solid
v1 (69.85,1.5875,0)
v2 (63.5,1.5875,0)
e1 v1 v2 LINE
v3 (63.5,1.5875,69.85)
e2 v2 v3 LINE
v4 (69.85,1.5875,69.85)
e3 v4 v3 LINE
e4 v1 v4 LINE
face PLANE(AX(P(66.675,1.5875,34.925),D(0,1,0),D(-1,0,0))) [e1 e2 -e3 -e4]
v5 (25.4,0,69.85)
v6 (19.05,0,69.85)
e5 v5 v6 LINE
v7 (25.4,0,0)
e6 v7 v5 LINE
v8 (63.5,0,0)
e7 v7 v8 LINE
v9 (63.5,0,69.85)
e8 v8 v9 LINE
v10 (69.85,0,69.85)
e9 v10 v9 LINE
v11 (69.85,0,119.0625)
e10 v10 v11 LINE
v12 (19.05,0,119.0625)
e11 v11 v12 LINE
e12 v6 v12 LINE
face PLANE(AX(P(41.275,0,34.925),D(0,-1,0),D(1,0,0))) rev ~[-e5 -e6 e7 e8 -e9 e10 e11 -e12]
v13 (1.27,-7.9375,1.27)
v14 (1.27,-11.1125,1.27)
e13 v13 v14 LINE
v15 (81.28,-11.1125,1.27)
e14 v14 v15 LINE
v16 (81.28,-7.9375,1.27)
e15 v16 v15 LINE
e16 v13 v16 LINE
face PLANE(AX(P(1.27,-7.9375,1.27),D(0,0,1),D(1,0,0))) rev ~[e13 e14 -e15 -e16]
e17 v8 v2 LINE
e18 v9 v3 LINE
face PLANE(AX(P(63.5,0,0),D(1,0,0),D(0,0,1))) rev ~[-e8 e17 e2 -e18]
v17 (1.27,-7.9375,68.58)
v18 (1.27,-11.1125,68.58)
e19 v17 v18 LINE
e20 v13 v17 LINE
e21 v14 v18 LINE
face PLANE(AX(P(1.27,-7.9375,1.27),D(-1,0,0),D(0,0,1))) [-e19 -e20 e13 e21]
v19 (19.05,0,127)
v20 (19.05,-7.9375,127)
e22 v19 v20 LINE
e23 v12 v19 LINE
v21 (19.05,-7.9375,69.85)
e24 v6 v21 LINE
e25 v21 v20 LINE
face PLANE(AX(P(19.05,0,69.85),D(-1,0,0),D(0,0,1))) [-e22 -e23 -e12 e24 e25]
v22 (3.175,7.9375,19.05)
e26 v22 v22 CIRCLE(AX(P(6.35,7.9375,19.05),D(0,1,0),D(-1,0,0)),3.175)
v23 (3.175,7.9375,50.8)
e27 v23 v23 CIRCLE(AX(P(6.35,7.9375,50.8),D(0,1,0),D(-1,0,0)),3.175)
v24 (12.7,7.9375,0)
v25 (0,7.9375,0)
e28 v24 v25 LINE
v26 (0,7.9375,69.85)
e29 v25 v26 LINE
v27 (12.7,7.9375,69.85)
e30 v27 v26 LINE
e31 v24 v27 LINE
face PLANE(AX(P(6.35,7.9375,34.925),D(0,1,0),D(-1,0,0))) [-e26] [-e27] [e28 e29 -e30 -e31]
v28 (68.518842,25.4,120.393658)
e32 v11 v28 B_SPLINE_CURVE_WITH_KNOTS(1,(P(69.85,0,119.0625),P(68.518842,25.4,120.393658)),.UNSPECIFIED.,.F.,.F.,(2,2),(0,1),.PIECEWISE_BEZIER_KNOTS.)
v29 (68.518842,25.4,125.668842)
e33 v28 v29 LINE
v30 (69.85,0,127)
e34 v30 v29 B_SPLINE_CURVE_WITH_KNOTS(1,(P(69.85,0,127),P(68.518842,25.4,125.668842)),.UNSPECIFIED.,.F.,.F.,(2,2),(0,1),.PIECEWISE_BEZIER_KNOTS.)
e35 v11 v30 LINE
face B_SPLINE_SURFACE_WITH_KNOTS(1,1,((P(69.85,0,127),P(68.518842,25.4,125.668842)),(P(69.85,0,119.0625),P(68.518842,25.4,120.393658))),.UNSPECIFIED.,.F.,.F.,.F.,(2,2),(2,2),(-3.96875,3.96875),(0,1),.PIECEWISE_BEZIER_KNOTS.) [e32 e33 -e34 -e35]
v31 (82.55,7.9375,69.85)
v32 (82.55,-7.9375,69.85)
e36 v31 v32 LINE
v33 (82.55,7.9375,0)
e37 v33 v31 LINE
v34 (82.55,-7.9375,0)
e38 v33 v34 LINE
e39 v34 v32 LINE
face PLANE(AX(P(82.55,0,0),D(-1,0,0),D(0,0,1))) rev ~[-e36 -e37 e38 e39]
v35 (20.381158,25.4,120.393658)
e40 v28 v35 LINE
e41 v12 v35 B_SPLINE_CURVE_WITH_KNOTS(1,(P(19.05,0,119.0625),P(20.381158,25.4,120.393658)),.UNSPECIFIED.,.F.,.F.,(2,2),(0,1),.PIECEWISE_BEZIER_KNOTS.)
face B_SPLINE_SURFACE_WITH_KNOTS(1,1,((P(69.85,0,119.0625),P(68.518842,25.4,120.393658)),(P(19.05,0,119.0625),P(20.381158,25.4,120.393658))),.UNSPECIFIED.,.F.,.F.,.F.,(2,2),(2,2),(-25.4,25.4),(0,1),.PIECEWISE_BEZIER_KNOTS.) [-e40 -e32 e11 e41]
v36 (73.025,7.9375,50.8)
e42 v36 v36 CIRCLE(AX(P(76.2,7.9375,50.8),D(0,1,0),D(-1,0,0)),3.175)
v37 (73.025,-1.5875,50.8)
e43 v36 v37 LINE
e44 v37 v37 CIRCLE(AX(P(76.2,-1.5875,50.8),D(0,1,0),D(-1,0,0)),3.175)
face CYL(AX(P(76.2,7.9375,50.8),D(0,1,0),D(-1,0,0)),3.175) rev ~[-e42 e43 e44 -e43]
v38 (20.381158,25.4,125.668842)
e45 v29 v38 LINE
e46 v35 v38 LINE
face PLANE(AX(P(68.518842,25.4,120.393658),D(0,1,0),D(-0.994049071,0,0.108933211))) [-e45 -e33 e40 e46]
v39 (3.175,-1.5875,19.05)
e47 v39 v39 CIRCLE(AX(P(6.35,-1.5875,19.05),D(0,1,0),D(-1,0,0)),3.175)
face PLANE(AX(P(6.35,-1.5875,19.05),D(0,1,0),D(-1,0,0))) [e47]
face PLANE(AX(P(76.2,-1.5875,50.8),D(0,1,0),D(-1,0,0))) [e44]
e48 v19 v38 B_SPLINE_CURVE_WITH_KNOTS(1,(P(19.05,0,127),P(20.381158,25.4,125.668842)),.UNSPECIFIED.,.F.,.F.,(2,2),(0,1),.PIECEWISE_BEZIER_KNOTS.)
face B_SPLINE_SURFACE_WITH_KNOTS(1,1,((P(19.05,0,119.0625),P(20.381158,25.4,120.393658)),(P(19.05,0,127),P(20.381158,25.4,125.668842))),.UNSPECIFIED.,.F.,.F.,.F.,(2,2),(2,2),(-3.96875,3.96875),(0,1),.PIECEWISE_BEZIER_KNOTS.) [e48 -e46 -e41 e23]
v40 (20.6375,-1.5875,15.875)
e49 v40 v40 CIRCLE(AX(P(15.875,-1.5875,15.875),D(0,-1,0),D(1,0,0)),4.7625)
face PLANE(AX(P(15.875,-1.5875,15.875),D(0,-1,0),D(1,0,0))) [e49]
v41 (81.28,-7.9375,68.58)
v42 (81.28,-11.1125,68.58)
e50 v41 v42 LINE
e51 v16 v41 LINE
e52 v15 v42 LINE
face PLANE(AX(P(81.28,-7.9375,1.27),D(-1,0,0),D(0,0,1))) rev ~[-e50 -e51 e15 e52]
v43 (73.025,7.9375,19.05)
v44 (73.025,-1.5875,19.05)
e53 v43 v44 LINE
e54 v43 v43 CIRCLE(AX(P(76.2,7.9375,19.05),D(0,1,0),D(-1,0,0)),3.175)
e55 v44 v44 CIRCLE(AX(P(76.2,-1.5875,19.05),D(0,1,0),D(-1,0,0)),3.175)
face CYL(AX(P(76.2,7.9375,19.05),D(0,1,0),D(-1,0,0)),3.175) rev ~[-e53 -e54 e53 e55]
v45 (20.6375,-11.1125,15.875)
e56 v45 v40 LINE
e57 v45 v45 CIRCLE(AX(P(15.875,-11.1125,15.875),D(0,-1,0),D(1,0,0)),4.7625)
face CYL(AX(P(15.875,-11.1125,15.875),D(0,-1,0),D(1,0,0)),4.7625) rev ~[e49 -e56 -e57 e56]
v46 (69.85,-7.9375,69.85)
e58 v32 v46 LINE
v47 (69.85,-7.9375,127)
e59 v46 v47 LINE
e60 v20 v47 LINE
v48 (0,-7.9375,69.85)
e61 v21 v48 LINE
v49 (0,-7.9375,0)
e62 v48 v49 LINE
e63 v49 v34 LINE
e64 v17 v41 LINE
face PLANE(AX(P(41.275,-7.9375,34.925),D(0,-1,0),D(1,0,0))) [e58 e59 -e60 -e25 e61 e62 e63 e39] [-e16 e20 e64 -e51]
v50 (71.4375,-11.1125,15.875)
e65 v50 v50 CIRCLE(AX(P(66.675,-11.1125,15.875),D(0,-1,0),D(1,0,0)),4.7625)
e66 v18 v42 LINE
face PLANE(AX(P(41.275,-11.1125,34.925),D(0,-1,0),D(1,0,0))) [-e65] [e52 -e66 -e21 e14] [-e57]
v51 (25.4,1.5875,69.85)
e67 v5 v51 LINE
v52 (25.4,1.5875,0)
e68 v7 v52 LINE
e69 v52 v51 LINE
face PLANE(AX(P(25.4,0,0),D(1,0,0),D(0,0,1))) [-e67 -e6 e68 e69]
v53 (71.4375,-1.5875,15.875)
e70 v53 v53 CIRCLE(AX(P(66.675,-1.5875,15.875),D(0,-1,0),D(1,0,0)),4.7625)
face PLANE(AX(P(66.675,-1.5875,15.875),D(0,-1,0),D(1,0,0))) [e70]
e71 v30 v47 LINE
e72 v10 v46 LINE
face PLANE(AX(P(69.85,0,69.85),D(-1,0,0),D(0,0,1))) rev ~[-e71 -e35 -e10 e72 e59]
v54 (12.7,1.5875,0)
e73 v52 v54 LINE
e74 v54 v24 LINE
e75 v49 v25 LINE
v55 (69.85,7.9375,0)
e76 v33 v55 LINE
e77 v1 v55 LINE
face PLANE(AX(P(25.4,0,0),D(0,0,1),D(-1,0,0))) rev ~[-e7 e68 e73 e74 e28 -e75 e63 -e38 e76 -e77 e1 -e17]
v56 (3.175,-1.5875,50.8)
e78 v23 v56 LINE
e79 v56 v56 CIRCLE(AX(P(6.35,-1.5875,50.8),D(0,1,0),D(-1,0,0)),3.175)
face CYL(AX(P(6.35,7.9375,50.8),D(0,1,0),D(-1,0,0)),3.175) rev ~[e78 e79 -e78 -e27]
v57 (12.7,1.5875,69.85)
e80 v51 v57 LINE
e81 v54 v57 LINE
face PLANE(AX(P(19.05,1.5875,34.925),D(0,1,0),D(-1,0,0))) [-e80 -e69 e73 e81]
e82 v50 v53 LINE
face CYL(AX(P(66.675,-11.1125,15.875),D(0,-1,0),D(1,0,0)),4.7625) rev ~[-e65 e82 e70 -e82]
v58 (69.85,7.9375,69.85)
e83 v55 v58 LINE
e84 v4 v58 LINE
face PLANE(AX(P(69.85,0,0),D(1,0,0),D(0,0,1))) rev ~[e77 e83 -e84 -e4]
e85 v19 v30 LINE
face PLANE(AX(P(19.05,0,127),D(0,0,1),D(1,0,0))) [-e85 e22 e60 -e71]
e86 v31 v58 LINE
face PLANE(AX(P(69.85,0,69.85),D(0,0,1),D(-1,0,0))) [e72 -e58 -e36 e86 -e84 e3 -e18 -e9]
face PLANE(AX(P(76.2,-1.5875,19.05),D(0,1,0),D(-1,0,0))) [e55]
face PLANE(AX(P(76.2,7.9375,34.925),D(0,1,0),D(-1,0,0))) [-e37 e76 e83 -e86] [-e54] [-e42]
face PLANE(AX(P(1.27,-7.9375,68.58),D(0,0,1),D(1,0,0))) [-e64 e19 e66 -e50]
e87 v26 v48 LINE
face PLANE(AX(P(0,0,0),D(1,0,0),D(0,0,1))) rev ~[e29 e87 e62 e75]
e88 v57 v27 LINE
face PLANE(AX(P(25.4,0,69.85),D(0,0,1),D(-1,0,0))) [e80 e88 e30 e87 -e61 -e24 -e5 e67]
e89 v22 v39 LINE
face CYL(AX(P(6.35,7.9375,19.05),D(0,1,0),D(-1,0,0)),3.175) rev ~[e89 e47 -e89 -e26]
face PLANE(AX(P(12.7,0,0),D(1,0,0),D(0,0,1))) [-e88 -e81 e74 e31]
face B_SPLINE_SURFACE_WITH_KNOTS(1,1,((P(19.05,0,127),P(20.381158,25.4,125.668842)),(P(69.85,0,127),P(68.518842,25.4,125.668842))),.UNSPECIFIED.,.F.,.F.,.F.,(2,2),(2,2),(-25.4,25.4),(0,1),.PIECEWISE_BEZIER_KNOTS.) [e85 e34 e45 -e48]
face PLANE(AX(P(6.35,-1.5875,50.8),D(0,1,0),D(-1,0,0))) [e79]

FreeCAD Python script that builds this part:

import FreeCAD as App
import Part
import Sketcher
from FreeCAD import Vector
Q = App.Units.Quantity

doc = App.newDocument("Part")
body = doc.addObject("PartDesign::Body", "Body")

# Sketch on XZ plane
sketch1 = body.newObject("Sketcher::SketchObject", "Sketch")
sketch1.AttachmentSupport = (doc.getObject("XZ_Plane"), [""])
sketch1.MapMode = "FlatFace"
sketch1.addGeometry(Part.LineSegment(Vector(0, 70, 0), Vector(0, 0, 0)), False)
sketch1.addGeometry(Part.LineSegment(Vector(0, 0, 0), Vector(83, 0, 0)), False)
sketch1.addGeometry(Part.LineSegment(Vector(83, 0, 0), Vector(83, 70, 0)), False)
sketch1.addGeometry(Part.LineSegment(Vector(83, 70, 0), Vector(70, 70, 0)), False)
sketch1.addGeometry(Part.LineSegment(Vector(70, 70, 0), Vector(70, 127, 0)), False)
sketch1.addGeometry(Part.LineSegment(Vector(70, 127, 0), Vector(19, 127, 0)), False)
sketch1.addGeometry(Part.LineSegment(Vector(19, 127, 0), Vector(19, 70, 0)), False)
sketch1.addGeometry(Part.LineSegment(Vector(19, 70, 0), Vector(0, 70, 0)), False)
sketch1.addConstraint(Sketcher.Constraint("Coincident", 0, 2, 1, 1))
sketch1.addConstraint(Sketcher.Constraint("Coincident", 1, 2, 2, 1))
sketch1.addConstraint(Sketcher.Constraint("Coincident", 2, 2, 3, 1))
sketch1.addConstraint(Sketcher.Constraint("Coincident", 3, 2, 4, 1))
sketch1.addConstraint(Sketcher.Constraint("Coincident", 4, 2, 5, 1))
sketch1.addConstraint(Sketcher.Constraint("Coincident", 5, 2, 6, 1))
sketch1.addConstraint(Sketcher.Constraint("Coincident", 6, 2, 7, 1))
sketch1.addConstraint(Sketcher.Constraint("Coincident", 7, 2, 0, 1))
sketch1.addConstraint(Sketcher.Constraint("Vertical", 0))
sketch1.addConstraint(Sketcher.Constraint("Horizontal", 1))
sketch1.addConstraint(Sketcher.Constraint("Vertical", 2))
sketch1.addConstraint(Sketcher.Constraint("Horizontal", 3))
sketch1.addConstraint(Sketcher.Constraint("Vertical", 4))
sketch1.addConstraint(Sketcher.Constraint("Horizontal", 5))
sketch1.addConstraint(Sketcher.Constraint("Vertical", 6))
sketch1.addConstraint(Sketcher.Constraint("Horizontal", 7))
sketch1.addConstraint(Sketcher.Constraint("Coincident", 0, 2, -1, 1))
sketch1.addConstraint(Sketcher.Constraint("Horizontal", 3, 2, 6, 2))
sketch1.addConstraint(Sketcher.Constraint("DistanceX", 5, 2, 5, 1, Q("2 in")))
sketch1.addConstraint(Sketcher.Constraint("DistanceX", 3, 2, 3, 1, Q("0.5 in")))
sketch1.addConstraint(Sketcher.Constraint("DistanceY", -1, 1, 4, 2, Q("5 in")))
sketch1.addConstraint(Sketcher.Constraint("DistanceX", 1, 1, 1, 2, Q("3.25 in")))
sketch1.addConstraint(Sketcher.Constraint("DistanceY", 0, 2, 0, 1, Q("2.75 in")))
pad1 = body.newObject("PartDesign::Pad", "Pad")
pad1.Profile = sketch1
pad1.Length = Q("0.3125 in")

# Sketch on XZ plane
sketch2 = body.newObject("Sketcher::SketchObject", "Sketch001")
sketch2.AttachmentSupport = (doc.getObject("XZ_Plane"), [""])
sketch2.MapMode = "FlatFace"
sketch2.addGeometry(Part.LineSegment(Vector(13, 70, 0), Vector(13, 0, 0)), False)
sketch2.addGeometry(Part.LineSegment(Vector(13, 0, 0), Vector(0, 0, 0)), False)
sketch2.addGeometry(Part.LineSegment(Vector(0, 0, 0), Vector(0, 70, 0)), False)
sketch2.addGeometry(Part.LineSegment(Vector(0, 70, 0), Vector(13, 70, 0)), False)
sketch2.addGeometry(Part.LineSegment(Vector(83, 70, 0), Vector(83, 0, 0)), False)
sketch2.addGeometry(Part.LineSegment(Vector(83, 0, 0), Vector(70, 0, 0)), False)
sketch2.addGeometry(Part.LineSegment(Vector(70, 0, 0), Vector(70, 70, 0)), False)
sketch2.addGeometry(Part.LineSegment(Vector(70, 70, 0), Vector(83, 70, 0)), False)
sketch2.addConstraint(Sketcher.Constraint("Coincident", 0, 2, 1, 1))
sketch2.addConstraint(Sketcher.Constraint("Coincident", 1, 2, 2, 1))
sketch2.addConstraint(Sketcher.Constraint("Coincident", 2, 2, 3, 1))
sketch2.addConstraint(Sketcher.Constraint("Coincident", 3, 2, 0, 1))
sketch2.addConstraint(Sketcher.Constraint("Coincident", 4, 2, 5, 1))
sketch2.addConstraint(Sketcher.Constraint("Coincident", 5, 2, 6, 1))
sketch2.addConstraint(Sketcher.Constraint("Coincident", 6, 2, 7, 1))
sketch2.addConstraint(Sketcher.Constraint("Coincident", 7, 2, 4, 1))
sketch2.addConstraint(Sketcher.Constraint("Vertical", 0))
sketch2.addConstraint(Sketcher.Constraint("Horizontal", 1))
sketch2.addConstraint(Sketcher.Constraint("Vertical", 2))
sketch2.addConstraint(Sketcher.Constraint("Horizontal", 3))
sketch2.addConstraint(Sketcher.Constraint("Vertical", 4))
sketch2.addConstraint(Sketcher.Constraint("Horizontal", 5))
sketch2.addConstraint(Sketcher.Constraint("Vertical", 6))
sketch2.addConstraint(Sketcher.Constraint("Horizontal", 7))
sketch2.addConstraint(Sketcher.Constraint("Coincident", 1, 2, -1, 1))
sketch2.addConstraint(Sketcher.Constraint("PointOnObject", 4, 2, -1))
sketch2.addConstraint(Sketcher.Constraint("Horizontal", 3, 2, 6, 2))
sketch2.addConstraint(Sketcher.Constraint("Equal", 3, 5))
sketch2.addConstraint(Sketcher.Constraint("DistanceX", 1, 2, 1, 1, Q("0.5 in")))
sketch2.addConstraint(Sketcher.Constraint("DistanceY", 0, 2, 0, 1, Q("2.75 in")))
sketch2.addConstraint(Sketcher.Constraint("DistanceX", -1, 1, 4, 2, Q("3.25 in")))
pad2 = body.newObject("PartDesign::Pad", "Pad001")
pad2.Profile = sketch2
pad2.Length = Q("0.3125 in")
pad2.Reversed = True

# Sketch on XZ plane
sketch3 = body.newObject("Sketcher::SketchObject", "Sketch002")
sketch3.AttachmentSupport = (doc.getObject("XZ_Plane"), [""])
sketch3.MapMode = "FlatFace"
sketch3.addGeometry(Part.LineSegment(Vector(25, 70, 0), Vector(25, 0, 0)), False)
sketch3.addGeometry(Part.LineSegment(Vector(25, 0, 0), Vector(13, 0, 0)), False)
sketch3.addGeometry(Part.LineSegment(Vector(13, 0, 0), Vector(13, 70, 0)), False)
sketch3.addGeometry(Part.LineSegment(Vector(13, 70, 0), Vector(25, 70, 0)), False)
sketch3.addGeometry(Part.LineSegment(Vector(70, 70, 0), Vector(70, 0, 0)), False)
sketch3.addGeometry(Part.LineSegment(Vector(70, 0, 0), Vector(64, 0, 0)), False)
sketch3.addGeometry(Part.LineSegment(Vector(64, 0, 0), Vector(64, 70, 0)), False)
sketch3.addGeometry(Part.LineSegment(Vector(64, 70, 0), Vector(70, 70, 0)), False)
sketch3.addConstraint(Sketcher.Constraint("Coincident", 0, 2, 1, 1))
sketch3.addConstraint(Sketcher.Constraint("Coincident", 1, 2, 2, 1))
sketch3.addConstraint(Sketcher.Constraint("Coincident", 2, 2, 3, 1))
sketch3.addConstraint(Sketcher.Constraint("Coincident", 3, 2, 0, 1))
sketch3.addConstraint(Sketcher.Constraint("Coincident", 4, 2, 5, 1))
sketch3.addConstraint(Sketcher.Constraint("Coincident", 5, 2, 6, 1))
sketch3.addConstraint(Sketcher.Constraint("Coincident", 6, 2, 7, 1))
sketch3.addConstraint(Sketcher.Constraint("Coincident", 7, 2, 4, 1))
sketch3.addConstraint(Sketcher.Constraint("Vertical", 0))
sketch3.addConstraint(Sketcher.Constraint("Horizontal", 1))
sketch3.addConstraint(Sketcher.Constraint("Vertical", 2))
sketch3.addConstraint(Sketcher.Constraint("Horizontal", 3))
sketch3.addConstraint(Sketcher.Constraint("Vertical", 4))
sketch3.addConstraint(Sketcher.Constraint("Horizontal", 5))
sketch3.addConstraint(Sketcher.Constraint("Vertical", 6))
sketch3.addConstraint(Sketcher.Constraint("Horizontal", 7))
sketch3.addConstraint(Sketcher.Constraint("PointOnObject", 0, 2, -1))
sketch3.addConstraint(Sketcher.Constraint("PointOnObject", 4, 2, -1))
sketch3.addConstraint(Sketcher.Constraint("Horizontal", 3, 2, 6, 2))
sketch3.addConstraint(Sketcher.Constraint("DistanceX", 1, 2, 1, 1, Q("0.5 in")))
sketch3.addConstraint(Sketcher.Constraint("DistanceX", -1, 1, 0, 2, Q("1 in")))
sketch3.addConstraint(Sketcher.Constraint("DistanceX", 1, 2, 5, 2, Q("2 in")))
sketch3.addConstraint(Sketcher.Constraint("DistanceX", 5, 2, 5, 1, Q("0.25 in")))
sketch3.addConstraint(Sketcher.Constraint("DistanceY", 0, 2, 0, 1, Q("2.75 in")))
pad3 = body.newObject("PartDesign::Pad", "Pad002")
pad3.Profile = sketch3
pad3.Length = Q("0.0625 in")
pad3.Reversed = True

# Sketch on XZ plane
sketch4 = body.newObject("Sketcher::SketchObject", "Sketch003")
sketch4.AttachmentSupport = (doc.getObject("XZ_Plane"), [""])
sketch4.MapMode = "FlatFace"
sketch4.addGeometry(Part.LineSegment(Vector(70, 127, 0), Vector(70, 119, 0)), False)
sketch4.addGeometry(Part.LineSegment(Vector(70, 119, 0), Vector(19, 119, 0)), False)
sketch4.addGeometry(Part.LineSegment(Vector(19, 119, 0), Vector(19, 127, 0)), False)
sketch4.addGeometry(Part.LineSegment(Vector(19, 127, 0), Vector(70, 127, 0)), False)
sketch4.addConstraint(Sketcher.Constraint("Coincident", 0, 2, 1, 1))
sketch4.addConstraint(Sketcher.Constraint("Coincident", 1, 2, 2, 1))
sketch4.addConstraint(Sketcher.Constraint("Coincident", 2, 2, 3, 1))
sketch4.addConstraint(Sketcher.Constraint("Coincident", 3, 2, 0, 1))
sketch4.addConstraint(Sketcher.Constraint("Vertical", 0))
sketch4.addConstraint(Sketcher.Constraint("Horizontal", 1))
sketch4.addConstraint(Sketcher.Constraint("Vertical", 2))
sketch4.addConstraint(Sketcher.Constraint("Horizontal", 3))
sketch4.addConstraint(Sketcher.Constraint("DistanceX", 1, 2, 1, 1, Q("2 in")))
sketch4.addConstraint(Sketcher.Constraint("DistanceY", -1, 1, 2, 2, Q("5 in")))
sketch4.addConstraint(Sketcher.Constraint("DistanceY", 0, 2, 0, 1, Q("0.3125 in")))
sketch4.addConstraint(Sketcher.Constraint("DistanceX", -1, 1, 0, 2, Q("2.75 in")))
pad4 = body.newObject("PartDesign::Pad", "Pad003")
pad4.Profile = sketch4
pad4.Length = Q("1 in")
pad4.Reversed = True
pad4.TaperAngle = -3

# Sketch on XZ plane
sketch5 = body.newObject("Sketcher::SketchObject", "Sketch004")
sketch5.AttachmentSupport = (doc.getObject("XZ_Plane"), [""])
sketch5.MapMode = "FlatFace"
sketch5.AttachmentOffset = App.Placement(Vector(0, 0, 0.3125 * 25.4), App.Rotation())
sketch5.addGeometry(Part.LineSegment(Vector(1, 69, 0), Vector(1, 1, 0)), False)
sketch5.addGeometry(Part.LineSegment(Vector(1, 1, 0), Vector(81, 1, 0)), False)
sketch5.addGeometry(Part.LineSegment(Vector(81, 1, 0), Vector(81, 69, 0)), False)
sketch5.addGeometry(Part.LineSegment(Vector(81, 69, 0), Vector(1, 69, 0)), False)
sketch5.addConstraint(Sketcher.Constraint("Coincident", 0, 2, 1, 1))
sketch5.addConstraint(Sketcher.Constraint("Coincident", 1, 2, 2, 1))
sketch5.addConstraint(Sketcher.Constraint("Coincident", 2, 2, 3, 1))
sketch5.addConstraint(Sketcher.Constraint("Coincident", 3, 2, 0, 1))
sketch5.addConstraint(Sketcher.Constraint("Vertical", 0))
sketch5.addConstraint(Sketcher.Constraint("Horizontal", 1))
sketch5.addConstraint(Sketcher.Constraint("Vertical", 2))
sketch5.addConstraint(Sketcher.Constraint("Horizontal", 3))
sketch5.addConstraint(Sketcher.Constraint("DistanceX", 1, 1, 1, 2, Q("3.15 in")))
sketch5.addConstraint(Sketcher.Constraint("DistanceY", 0, 2, 0, 1, Q("2.65 in")))
sketch5.addConstraint(Sketcher.Constraint("DistanceX", -1, 1, 1, 2, Q("3.2 in")))
sketch5.addConstraint(Sketcher.Constraint("DistanceY", -1, 1, 2, 2, Q("2.7 in")))
pad5 = body.newObject("PartDesign::Pad", "Pad004")
pad5.Profile = sketch5
pad5.Length = Q("0.125 in")

# Sketch on XZ plane
sketch6 = body.newObject("Sketcher::SketchObject", "Sketch005")
sketch6.AttachmentSupport = (doc.getObject("XZ_Plane"), [""])
sketch6.MapMode = "FlatFace"
sketch6.AttachmentOffset = App.Placement(Vector(0, 0, 0.4375 * 25.4), App.Rotation())
sketch6.addGeometry(Part.Circle(Vector(15.9, 15.9, 0), Vector(0, 0, 1), 4.8), False)
sketch6.addGeometry(Part.Circle(Vector(66.7, 15.9, 0), Vector(0, 0, 1), 4.8), False)
sketch6.addConstraint(Sketcher.Constraint("Equal", 0, 1))
sketch6.addConstraint(Sketcher.Constraint("Horizontal", 0, 3, 1, 3))
sketch6.addConstraint(Sketcher.Constraint("Diameter", 0, Q("0.375 in")))
sketch6.addConstraint(Sketcher.Constraint("DistanceX", 0, 3, 1, 3, Q("2 in")))
sketch6.addConstraint(Sketcher.Constraint("DistanceX", -1, 1, 0, 3, Q("0.625 in")))
sketch6.addConstraint(Sketcher.Constraint("DistanceY", -1, 1, 0, 3, Q("0.625 in")))
pocket1 = body.newObject("PartDesign::Pocket", "Pocket")
pocket1.Profile = sketch6
pocket1.Length = Q("0.375 in")

# Sketch on XZ plane
sketch7 = body.newObject("Sketcher::SketchObject", "Sketch006")
sketch7.AttachmentSupport = (doc.getObject("XZ_Plane"), [""])
sketch7.MapMode = "FlatFace"
sketch7.AttachmentOffset = App.Placement(Vector(0, 0, -0.3125 * 25.4), App.Rotation())
sketch7.addGeometry(Part.Circle(Vector(76.2, 50.8, 0), Vector(0, 0, 1), 3.2), False)
sketch7.addGeometry(Part.Circle(Vector(76.2, 19.1, 0), Vector(0, 0, 1), 3.2), False)
sketch7.addGeometry(Part.Circle(Vector(6.3, 50.8, 0), Vector(0, 0, 1), 3.2), False)
sketch7.addGeometry(Part.Circle(Vector(6.3, 19.1, 0), Vector(0, 0, 1), 3.2), False)
sketch7.addConstraint(Sketcher.Constraint("Equal", 0, 1))
sketch7.addConstraint(Sketcher.Constraint("Equal", 1, 2))
sketch7.addConstraint(Sketcher.Constraint("Equal", 2, 3))
sketch7.addConstraint(Sketcher.Constraint("Horizontal", 0, 3, 2, 3))
sketch7.addConstraint(Sketcher.Constraint("Horizontal", 1, 3, 3, 3))
sketch7.addConstraint(Sketcher.Constraint("Vertical", 0, 3, 1, 3))
sketch7.addConstraint(Sketcher.Constraint("Vertical", 2, 3, 3, 3))
sketch7.addConstraint(Sketcher.Constraint("Diameter", 0, Q("0.25 in")))
sketch7.addConstraint(Sketcher.Constraint("DistanceX", -1, 1, 0, 3, Q("3 in")))
sketch7.addConstraint(Sketcher.Constraint("DistanceY", -1, 1, 0, 3, Q("2 in")))
sketch7.addConstraint(Sketcher.Constraint("DistanceY", -1, 1, 1, 3, Q("0.75 in")))
sketch7.addConstraint(Sketcher.Constraint("DistanceX", -1, 1, 2, 3, Q("0.25 in")))
pocket2 = body.newObject("PartDesign::Pocket", "Pocket001")
pocket2.Profile = sketch7
pocket2.Length = Q("0.375 in")
pocket2.Reversed = True

doc.recompute()
